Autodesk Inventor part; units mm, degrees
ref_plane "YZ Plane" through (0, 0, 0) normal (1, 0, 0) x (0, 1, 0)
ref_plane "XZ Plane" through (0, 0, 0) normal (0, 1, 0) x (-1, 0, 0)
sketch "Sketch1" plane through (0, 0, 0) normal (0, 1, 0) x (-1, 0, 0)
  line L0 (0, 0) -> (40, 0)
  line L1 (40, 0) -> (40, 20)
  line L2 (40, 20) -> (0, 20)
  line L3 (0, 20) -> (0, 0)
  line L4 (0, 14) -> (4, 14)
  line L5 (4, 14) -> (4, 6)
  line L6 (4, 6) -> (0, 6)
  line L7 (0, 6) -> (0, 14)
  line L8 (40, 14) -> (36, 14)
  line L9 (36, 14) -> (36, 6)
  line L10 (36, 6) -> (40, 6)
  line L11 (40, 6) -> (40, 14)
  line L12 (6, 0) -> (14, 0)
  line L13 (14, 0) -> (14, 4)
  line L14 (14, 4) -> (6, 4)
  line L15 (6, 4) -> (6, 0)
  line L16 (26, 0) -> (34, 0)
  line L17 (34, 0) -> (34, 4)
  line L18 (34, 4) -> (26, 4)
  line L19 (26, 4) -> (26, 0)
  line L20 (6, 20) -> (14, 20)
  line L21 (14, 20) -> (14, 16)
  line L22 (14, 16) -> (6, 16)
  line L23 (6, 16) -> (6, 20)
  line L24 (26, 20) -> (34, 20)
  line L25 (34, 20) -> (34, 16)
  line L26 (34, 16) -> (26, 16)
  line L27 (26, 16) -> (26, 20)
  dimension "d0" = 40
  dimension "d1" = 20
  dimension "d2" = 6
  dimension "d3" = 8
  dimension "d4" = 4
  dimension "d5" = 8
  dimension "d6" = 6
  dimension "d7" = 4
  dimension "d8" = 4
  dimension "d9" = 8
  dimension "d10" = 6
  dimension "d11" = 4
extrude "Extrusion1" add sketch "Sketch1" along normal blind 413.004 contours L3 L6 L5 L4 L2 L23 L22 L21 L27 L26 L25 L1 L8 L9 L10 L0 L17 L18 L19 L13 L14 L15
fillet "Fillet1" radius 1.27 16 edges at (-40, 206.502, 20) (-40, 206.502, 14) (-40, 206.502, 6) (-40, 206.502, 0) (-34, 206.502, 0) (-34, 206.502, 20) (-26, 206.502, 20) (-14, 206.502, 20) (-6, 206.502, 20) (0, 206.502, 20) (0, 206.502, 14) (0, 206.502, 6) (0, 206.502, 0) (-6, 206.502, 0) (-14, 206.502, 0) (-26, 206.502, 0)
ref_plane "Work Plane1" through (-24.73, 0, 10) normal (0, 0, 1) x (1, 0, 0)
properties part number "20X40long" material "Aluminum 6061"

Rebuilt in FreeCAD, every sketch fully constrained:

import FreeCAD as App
import Part
import Sketcher
from FreeCAD import Vector


def edges_at(feature, points):
    """Names of the edges that pass closest to the given points."""
    edges = feature.Shape.Edges
    near = lambda p: min(range(len(edges)), key=lambda i: edges[i].distToShape(Part.Vertex(*p))[0])
    return sorted({f"Edge{near(p) + 1}" for p in points})


def add_polygon(sketch, points):
    """Adds a closed chain of lines whose ends are joined by coincident constraints."""
    first, n = sketch.GeometryCount, len(points)
    for a, b in zip(points, points[1:] + points[:1]):
        sketch.addGeometry(Part.LineSegment(App.Vector(*a, 0), App.Vector(*b, 0)), False)
    for i in range(n):
        sketch.addConstraint(Sketcher.Constraint("Coincident", first + i, 2, first + (i + 1) % n, 1))

doc = App.newDocument("Part")
body = doc.addObject("PartDesign::Body", "Body")

sketch1 = doc.addObject("Sketcher::SketchObject", "Sketch")
body.addObject(sketch1)
sketch1.AttachmentSupport = (doc.XZ_Plane, [""])
sketch1.MapMode = "FlatFace"
add_polygon(sketch1, [(0, 6), (0, 0), (-6, 0), (-6, 4), (-14, 4), (-14, 0), (-26, 0), (-26, 4), (-34, 4), (-34, 0), (-40, 0), (-40, 6), (-36, 6), (-36, 14), (-40, 14), (-40, 20), (-34, 20), (-34, 16), (-26, 16), (-26, 20), (-14, 20), (-14, 16), (-6, 16), (-6, 20), (0, 20), (0, 14), (-4, 14), (-4, 6)])
sketch1.addConstraint(Sketcher.Constraint("Vertical", 0))
sketch1.addConstraint(Sketcher.Constraint("Horizontal", 1))
sketch1.addConstraint(Sketcher.Constraint("Vertical", 2))
sketch1.addConstraint(Sketcher.Constraint("Horizontal", 3))
sketch1.addConstraint(Sketcher.Constraint("Vertical", 4))
sketch1.addConstraint(Sketcher.Constraint("Horizontal", 5))
sketch1.addConstraint(Sketcher.Constraint("Vertical", 6))
sketch1.addConstraint(Sketcher.Constraint("Horizontal", 7))
sketch1.addConstraint(Sketcher.Constraint("Vertical", 8))
sketch1.addConstraint(Sketcher.Constraint("Horizontal", 9))
sketch1.addConstraint(Sketcher.Constraint("Vertical", 10))
sketch1.addConstraint(Sketcher.Constraint("Horizontal", 11))
sketch1.addConstraint(Sketcher.Constraint("Vertical", 12))
sketch1.addConstraint(Sketcher.Constraint("Horizontal", 13))
sketch1.addConstraint(Sketcher.Constraint("Vertical", 14))
sketch1.addConstraint(Sketcher.Constraint("Horizontal", 15))
sketch1.addConstraint(Sketcher.Constraint("Vertical", 16))
sketch1.addConstraint(Sketcher.Constraint("Horizontal", 17))
sketch1.addConstraint(Sketcher.Constraint("Vertical", 18))
sketch1.addConstraint(Sketcher.Constraint("Horizontal", 19))
sketch1.addConstraint(Sketcher.Constraint("Vertical", 20))
sketch1.addConstraint(Sketcher.Constraint("Horizontal", 21))
sketch1.addConstraint(Sketcher.Constraint("Vertical", 22))
sketch1.addConstraint(Sketcher.Constraint("Horizontal", 23))
sketch1.addConstraint(Sketcher.Constraint("Vertical", 24))
sketch1.addConstraint(Sketcher.Constraint("Horizontal", 25))
sketch1.addConstraint(Sketcher.Constraint("Vertical", 26))
sketch1.addConstraint(Sketcher.Constraint("Horizontal", 27))
sketch1.addConstraint(Sketcher.Constraint("Coincident", 0, 2, -1, 1))
sketch1.addConstraint(Sketcher.Constraint("PointOnObject", 4, 2, -1))
sketch1.addConstraint(Sketcher.Constraint("PointOnObject", 8, 2, -1))
sketch1.addConstraint(Sketcher.Constraint("PointOnObject", 23, 2, -2))
sketch1.addConstraint(Sketcher.Constraint("Horizontal", 3, 2, 6, 2))
sketch1.addConstraint(Sketcher.Constraint("Horizontal", 15, 2, 18, 2))
sketch1.addConstraint(Sketcher.Constraint("Horizontal", 17, 2, 20, 2))
sketch1.addConstraint(Sketcher.Constraint("Horizontal", 19, 2, 22, 2))
sketch1.addConstraint(Sketcher.Constraint("Horizontal", 13, 2, 24, 2))
sketch1.addConstraint(Sketcher.Constraint("Horizontal", 11, 2, 26, 2))
sketch1.addConstraint(Sketcher.Constraint("Vertical", 10, 2, 13, 2))
sketch1.addConstraint(Sketcher.Constraint("Vertical", 8, 2, 15, 2))
sketch1.addConstraint(Sketcher.Constraint("Vertical", 6, 2, 17, 2))
sketch1.addConstraint(Sketcher.Constraint("Vertical", 4, 2, 19, 2))
sketch1.addConstraint(Sketcher.Constraint("Vertical", 2, 2, 21, 2))
sketch1.addConstraint(Sketcher.Constraint("Equal", 3, 7))
sketch1.addConstraint(Sketcher.Constraint("Equal", 1, 9))
sketch1.addConstraint(Sketcher.Constraint("Equal", 13, 25))
sketch1.addConstraint(Sketcher.Constraint("Equal", 23, 0))
sketch1.addConstraint(Sketcher.Constraint("Equal", 27, 2))
sketch1.addConstraint(Sketcher.Constraint("Equal", 21, 12))
sketch1.addConstraint(Sketcher.Constraint("Equal", 10, 14))
sketch1.addConstraint(Sketcher.Constraint("Equal", 8, 16))
sketch1.addConstraint(Sketcher.Constraint("DistanceX", 1, 2, 1, 1, 6.0))
sketch1.addConstraint(Sketcher.Constraint("DistanceX", 3, 2, 3, 1, 8.0))
sketch1.addConstraint(Sketcher.Constraint("DistanceX", 11, 1, 11, 2, 4.0))
sketch1.addConstraint(Sketcher.Constraint("DistanceX", 9, 2, -1, 1, 40.0))
pad1 = doc.addObject("PartDesign::Pad", "Pad")
body.addObject(pad1)
pad1.Profile = sketch1
pad1.Length = 413.004
pad1.Reversed = True
doc.recompute()

fillet = doc.addObject("PartDesign::Fillet", "Fillet")
body.addObject(fillet)
fillet.Base = (pad1, edges_at(pad1, [
    (-40, 206.502, 20),
    (-40, 206.502, 14),
    (-40, 206.502, 6),
    (-40, 206.502, 0),
    (-34, 206.502, 0),
    (-34, 206.502, 20),
    (-26, 206.502, 20),
    (-14, 206.502, 20),
    (-6, 206.502, 20),
    (0, 206.502, 20),
    (0, 206.502, 14),
    (0, 206.502, 6),
    (0, 206.502, 0),
    (-6, 206.502, 0),
    (-14, 206.502, 0),
    (-26, 206.502, 0),
]))
fillet.Radius = 1.27

doc.recompute()
